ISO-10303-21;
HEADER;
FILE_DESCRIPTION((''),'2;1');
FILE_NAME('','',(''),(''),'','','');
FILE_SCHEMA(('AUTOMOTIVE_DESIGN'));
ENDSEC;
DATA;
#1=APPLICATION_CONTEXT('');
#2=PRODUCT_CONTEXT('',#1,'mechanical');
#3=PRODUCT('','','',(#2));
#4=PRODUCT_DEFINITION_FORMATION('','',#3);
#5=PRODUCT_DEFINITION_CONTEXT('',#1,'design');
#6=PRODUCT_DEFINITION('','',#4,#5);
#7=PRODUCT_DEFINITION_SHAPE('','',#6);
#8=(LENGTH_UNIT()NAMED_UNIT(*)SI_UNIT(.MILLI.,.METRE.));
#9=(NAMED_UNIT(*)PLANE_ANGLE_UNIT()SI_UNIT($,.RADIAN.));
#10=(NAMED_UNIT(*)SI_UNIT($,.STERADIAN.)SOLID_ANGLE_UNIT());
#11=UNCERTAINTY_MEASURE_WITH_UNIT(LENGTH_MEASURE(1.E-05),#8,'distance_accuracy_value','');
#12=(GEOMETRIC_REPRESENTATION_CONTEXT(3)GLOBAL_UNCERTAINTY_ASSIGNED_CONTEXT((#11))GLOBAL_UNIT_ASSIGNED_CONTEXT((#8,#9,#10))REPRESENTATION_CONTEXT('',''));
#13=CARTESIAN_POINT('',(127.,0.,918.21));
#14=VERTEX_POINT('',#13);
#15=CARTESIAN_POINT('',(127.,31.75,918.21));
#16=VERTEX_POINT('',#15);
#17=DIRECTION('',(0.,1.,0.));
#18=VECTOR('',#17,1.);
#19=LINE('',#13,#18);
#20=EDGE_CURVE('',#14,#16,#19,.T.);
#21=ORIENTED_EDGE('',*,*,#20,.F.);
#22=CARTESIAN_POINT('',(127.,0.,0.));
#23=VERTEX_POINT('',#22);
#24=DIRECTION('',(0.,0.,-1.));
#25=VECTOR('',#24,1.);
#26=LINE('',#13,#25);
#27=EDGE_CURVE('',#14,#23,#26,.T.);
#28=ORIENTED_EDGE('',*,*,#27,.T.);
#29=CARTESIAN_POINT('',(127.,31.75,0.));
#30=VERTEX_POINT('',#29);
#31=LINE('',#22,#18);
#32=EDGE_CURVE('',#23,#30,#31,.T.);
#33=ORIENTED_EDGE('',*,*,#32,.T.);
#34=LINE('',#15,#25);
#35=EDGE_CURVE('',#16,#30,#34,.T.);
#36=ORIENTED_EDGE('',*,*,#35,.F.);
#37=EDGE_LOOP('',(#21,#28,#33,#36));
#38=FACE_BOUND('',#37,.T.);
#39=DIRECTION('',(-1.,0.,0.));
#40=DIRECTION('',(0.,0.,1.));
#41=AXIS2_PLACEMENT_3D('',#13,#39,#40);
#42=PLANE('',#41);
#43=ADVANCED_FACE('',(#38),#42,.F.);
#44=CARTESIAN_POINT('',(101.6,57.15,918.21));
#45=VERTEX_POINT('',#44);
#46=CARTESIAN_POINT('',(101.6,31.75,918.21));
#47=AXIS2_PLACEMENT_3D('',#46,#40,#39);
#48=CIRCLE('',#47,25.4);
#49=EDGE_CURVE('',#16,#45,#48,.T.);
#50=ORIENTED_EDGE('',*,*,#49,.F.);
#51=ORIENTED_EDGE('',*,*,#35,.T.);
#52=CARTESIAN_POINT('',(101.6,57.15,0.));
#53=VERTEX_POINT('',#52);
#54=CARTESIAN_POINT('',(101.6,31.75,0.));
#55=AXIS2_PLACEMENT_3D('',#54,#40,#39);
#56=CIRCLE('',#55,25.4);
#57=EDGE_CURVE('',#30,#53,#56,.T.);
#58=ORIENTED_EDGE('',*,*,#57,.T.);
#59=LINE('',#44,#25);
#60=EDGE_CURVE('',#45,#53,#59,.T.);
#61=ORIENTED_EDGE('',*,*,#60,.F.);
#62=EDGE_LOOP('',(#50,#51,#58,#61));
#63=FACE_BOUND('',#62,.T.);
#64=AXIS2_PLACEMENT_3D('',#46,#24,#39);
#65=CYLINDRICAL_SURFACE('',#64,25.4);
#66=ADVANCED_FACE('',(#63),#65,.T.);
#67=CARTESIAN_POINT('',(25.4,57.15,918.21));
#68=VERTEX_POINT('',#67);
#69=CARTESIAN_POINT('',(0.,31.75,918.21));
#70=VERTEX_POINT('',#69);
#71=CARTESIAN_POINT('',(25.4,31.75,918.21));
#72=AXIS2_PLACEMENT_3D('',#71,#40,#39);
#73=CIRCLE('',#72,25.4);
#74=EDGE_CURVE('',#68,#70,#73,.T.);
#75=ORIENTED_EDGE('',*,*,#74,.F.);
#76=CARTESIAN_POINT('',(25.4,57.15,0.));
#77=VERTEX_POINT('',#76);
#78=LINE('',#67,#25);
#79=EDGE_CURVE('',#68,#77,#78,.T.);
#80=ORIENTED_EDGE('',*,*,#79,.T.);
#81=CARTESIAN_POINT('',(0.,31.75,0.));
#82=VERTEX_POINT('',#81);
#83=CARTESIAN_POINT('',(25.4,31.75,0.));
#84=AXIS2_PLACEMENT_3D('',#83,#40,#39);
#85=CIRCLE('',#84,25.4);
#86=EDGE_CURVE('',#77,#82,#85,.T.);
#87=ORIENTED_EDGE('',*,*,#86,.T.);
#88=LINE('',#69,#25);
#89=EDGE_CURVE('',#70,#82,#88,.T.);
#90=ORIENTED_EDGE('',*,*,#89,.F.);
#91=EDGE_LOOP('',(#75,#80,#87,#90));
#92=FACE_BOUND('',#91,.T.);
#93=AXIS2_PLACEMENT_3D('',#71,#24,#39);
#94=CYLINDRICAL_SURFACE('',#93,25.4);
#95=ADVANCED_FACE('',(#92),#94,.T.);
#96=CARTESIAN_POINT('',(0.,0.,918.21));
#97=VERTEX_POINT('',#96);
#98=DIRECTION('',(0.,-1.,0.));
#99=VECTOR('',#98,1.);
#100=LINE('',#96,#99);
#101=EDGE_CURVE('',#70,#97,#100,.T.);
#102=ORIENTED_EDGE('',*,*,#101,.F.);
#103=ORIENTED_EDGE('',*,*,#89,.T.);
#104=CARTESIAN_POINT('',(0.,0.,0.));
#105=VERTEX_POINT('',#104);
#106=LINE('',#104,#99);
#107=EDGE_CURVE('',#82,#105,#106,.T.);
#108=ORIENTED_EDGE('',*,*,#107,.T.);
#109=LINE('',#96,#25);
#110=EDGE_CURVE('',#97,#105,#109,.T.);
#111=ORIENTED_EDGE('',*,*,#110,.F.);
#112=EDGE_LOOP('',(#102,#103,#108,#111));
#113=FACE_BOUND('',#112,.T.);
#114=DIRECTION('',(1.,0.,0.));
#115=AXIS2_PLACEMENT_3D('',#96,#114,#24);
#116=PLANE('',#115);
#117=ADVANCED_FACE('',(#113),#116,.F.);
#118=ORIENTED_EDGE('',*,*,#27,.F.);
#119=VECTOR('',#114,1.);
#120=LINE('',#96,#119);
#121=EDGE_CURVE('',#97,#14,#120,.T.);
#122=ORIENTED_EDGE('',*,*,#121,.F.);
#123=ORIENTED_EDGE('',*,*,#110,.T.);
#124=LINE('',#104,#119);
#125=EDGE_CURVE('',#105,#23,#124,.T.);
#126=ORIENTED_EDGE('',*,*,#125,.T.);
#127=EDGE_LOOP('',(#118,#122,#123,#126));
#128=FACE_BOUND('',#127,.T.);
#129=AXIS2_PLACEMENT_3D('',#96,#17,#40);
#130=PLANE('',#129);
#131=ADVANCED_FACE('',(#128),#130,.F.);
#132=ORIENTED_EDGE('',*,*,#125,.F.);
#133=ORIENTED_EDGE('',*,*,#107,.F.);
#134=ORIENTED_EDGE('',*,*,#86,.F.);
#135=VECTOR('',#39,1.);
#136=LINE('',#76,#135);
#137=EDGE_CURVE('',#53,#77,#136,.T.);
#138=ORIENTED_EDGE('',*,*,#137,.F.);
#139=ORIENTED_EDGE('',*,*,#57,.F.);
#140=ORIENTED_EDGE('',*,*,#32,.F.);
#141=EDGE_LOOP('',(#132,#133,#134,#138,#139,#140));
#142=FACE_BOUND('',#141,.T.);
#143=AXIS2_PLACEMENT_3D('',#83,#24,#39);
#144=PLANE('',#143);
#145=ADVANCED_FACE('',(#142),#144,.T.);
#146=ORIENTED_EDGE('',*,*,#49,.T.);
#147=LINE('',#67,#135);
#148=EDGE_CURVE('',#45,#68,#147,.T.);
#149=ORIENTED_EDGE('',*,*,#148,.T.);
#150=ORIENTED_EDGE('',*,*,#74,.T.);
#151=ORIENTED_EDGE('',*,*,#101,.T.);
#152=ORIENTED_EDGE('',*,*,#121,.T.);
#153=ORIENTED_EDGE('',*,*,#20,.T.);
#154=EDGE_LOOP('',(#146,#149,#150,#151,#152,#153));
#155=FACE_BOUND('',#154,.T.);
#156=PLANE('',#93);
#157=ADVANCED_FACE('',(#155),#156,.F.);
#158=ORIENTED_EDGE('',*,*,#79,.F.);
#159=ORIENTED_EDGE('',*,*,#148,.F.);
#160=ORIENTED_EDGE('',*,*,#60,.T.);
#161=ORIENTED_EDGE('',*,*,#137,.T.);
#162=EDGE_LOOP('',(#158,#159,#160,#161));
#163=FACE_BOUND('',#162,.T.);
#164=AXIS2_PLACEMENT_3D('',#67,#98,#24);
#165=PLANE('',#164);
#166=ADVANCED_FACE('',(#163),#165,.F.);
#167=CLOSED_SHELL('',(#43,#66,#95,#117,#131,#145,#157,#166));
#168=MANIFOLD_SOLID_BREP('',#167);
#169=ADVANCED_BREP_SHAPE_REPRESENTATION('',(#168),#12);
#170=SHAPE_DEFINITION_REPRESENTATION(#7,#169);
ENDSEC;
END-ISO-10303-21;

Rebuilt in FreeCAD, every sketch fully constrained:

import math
import FreeCAD as App
import Part
import Sketcher

V = App.Vector
Q = App.Units.Quantity

doc = App.newDocument("Part")
body = doc.addObject("PartDesign::Body", "Body")

# Sketch on XY plane
sketch1 = body.newObject("Sketcher::SketchObject", "Sketch")
sketch1.AttachmentSupport = (doc.getObject("XY_Plane"), [""])
sketch1.MapMode = "FlatFace"
sketch1.addGeometry([
    Part.LineSegment(V(0, 0, 0), V(127, 0, 0)),  # 0
    Part.LineSegment(V(127, 0, 0), V(127, 32, 0)),  # 1
    Part.ArcOfCircle(Part.Circle(V(102, 32, 0), V(0, 0, 1), 25), math.radians(0), math.radians(90)),  # 2
    Part.LineSegment(V(102, 57, 0), V(25, 57, 0)),  # 3
    Part.ArcOfCircle(Part.Circle(V(25, 32, 0), V(0, 0, 1), 25), math.radians(90), math.radians(180)),  # 4
    Part.LineSegment(V(0, 32, 0), V(0, 0, 0)),  # 5
], False)
sketch1.addConstraint([
    Sketcher.Constraint("Coincident", 0, 2, 1, 1),
    Sketcher.Constraint("Tangent", 1, 2, 2, 1),
    Sketcher.Constraint("Tangent", 2, 2, 3, 1),
    Sketcher.Constraint("Tangent", 3, 2, 4, 1),
    Sketcher.Constraint("Tangent", 4, 2, 5, 1),
    Sketcher.Constraint("Coincident", 5, 2, 0, 1),
    Sketcher.Constraint("Horizontal", 0),
    Sketcher.Constraint("Vertical", 1),
    Sketcher.Constraint("Horizontal", 3),
    Sketcher.Constraint("Vertical", 5),
    Sketcher.Constraint("Coincident", 5, 2, -1, 1),
    Sketcher.Constraint("Equal", 2, 4),
    Sketcher.Constraint("Radius", 2, Q("1 in")),
    Sketcher.Constraint("DistanceX", 0, 1, 0, 2, Q("5 in")),
    Sketcher.Constraint("DistanceY", 1, 1, 1, 2, Q("1.25 in")),
])
pad1 = body.newObject("PartDesign::Pad", "Pad")
pad1.Profile = sketch1
pad1.Length = Q("36.15 in")

doc.recompute()
